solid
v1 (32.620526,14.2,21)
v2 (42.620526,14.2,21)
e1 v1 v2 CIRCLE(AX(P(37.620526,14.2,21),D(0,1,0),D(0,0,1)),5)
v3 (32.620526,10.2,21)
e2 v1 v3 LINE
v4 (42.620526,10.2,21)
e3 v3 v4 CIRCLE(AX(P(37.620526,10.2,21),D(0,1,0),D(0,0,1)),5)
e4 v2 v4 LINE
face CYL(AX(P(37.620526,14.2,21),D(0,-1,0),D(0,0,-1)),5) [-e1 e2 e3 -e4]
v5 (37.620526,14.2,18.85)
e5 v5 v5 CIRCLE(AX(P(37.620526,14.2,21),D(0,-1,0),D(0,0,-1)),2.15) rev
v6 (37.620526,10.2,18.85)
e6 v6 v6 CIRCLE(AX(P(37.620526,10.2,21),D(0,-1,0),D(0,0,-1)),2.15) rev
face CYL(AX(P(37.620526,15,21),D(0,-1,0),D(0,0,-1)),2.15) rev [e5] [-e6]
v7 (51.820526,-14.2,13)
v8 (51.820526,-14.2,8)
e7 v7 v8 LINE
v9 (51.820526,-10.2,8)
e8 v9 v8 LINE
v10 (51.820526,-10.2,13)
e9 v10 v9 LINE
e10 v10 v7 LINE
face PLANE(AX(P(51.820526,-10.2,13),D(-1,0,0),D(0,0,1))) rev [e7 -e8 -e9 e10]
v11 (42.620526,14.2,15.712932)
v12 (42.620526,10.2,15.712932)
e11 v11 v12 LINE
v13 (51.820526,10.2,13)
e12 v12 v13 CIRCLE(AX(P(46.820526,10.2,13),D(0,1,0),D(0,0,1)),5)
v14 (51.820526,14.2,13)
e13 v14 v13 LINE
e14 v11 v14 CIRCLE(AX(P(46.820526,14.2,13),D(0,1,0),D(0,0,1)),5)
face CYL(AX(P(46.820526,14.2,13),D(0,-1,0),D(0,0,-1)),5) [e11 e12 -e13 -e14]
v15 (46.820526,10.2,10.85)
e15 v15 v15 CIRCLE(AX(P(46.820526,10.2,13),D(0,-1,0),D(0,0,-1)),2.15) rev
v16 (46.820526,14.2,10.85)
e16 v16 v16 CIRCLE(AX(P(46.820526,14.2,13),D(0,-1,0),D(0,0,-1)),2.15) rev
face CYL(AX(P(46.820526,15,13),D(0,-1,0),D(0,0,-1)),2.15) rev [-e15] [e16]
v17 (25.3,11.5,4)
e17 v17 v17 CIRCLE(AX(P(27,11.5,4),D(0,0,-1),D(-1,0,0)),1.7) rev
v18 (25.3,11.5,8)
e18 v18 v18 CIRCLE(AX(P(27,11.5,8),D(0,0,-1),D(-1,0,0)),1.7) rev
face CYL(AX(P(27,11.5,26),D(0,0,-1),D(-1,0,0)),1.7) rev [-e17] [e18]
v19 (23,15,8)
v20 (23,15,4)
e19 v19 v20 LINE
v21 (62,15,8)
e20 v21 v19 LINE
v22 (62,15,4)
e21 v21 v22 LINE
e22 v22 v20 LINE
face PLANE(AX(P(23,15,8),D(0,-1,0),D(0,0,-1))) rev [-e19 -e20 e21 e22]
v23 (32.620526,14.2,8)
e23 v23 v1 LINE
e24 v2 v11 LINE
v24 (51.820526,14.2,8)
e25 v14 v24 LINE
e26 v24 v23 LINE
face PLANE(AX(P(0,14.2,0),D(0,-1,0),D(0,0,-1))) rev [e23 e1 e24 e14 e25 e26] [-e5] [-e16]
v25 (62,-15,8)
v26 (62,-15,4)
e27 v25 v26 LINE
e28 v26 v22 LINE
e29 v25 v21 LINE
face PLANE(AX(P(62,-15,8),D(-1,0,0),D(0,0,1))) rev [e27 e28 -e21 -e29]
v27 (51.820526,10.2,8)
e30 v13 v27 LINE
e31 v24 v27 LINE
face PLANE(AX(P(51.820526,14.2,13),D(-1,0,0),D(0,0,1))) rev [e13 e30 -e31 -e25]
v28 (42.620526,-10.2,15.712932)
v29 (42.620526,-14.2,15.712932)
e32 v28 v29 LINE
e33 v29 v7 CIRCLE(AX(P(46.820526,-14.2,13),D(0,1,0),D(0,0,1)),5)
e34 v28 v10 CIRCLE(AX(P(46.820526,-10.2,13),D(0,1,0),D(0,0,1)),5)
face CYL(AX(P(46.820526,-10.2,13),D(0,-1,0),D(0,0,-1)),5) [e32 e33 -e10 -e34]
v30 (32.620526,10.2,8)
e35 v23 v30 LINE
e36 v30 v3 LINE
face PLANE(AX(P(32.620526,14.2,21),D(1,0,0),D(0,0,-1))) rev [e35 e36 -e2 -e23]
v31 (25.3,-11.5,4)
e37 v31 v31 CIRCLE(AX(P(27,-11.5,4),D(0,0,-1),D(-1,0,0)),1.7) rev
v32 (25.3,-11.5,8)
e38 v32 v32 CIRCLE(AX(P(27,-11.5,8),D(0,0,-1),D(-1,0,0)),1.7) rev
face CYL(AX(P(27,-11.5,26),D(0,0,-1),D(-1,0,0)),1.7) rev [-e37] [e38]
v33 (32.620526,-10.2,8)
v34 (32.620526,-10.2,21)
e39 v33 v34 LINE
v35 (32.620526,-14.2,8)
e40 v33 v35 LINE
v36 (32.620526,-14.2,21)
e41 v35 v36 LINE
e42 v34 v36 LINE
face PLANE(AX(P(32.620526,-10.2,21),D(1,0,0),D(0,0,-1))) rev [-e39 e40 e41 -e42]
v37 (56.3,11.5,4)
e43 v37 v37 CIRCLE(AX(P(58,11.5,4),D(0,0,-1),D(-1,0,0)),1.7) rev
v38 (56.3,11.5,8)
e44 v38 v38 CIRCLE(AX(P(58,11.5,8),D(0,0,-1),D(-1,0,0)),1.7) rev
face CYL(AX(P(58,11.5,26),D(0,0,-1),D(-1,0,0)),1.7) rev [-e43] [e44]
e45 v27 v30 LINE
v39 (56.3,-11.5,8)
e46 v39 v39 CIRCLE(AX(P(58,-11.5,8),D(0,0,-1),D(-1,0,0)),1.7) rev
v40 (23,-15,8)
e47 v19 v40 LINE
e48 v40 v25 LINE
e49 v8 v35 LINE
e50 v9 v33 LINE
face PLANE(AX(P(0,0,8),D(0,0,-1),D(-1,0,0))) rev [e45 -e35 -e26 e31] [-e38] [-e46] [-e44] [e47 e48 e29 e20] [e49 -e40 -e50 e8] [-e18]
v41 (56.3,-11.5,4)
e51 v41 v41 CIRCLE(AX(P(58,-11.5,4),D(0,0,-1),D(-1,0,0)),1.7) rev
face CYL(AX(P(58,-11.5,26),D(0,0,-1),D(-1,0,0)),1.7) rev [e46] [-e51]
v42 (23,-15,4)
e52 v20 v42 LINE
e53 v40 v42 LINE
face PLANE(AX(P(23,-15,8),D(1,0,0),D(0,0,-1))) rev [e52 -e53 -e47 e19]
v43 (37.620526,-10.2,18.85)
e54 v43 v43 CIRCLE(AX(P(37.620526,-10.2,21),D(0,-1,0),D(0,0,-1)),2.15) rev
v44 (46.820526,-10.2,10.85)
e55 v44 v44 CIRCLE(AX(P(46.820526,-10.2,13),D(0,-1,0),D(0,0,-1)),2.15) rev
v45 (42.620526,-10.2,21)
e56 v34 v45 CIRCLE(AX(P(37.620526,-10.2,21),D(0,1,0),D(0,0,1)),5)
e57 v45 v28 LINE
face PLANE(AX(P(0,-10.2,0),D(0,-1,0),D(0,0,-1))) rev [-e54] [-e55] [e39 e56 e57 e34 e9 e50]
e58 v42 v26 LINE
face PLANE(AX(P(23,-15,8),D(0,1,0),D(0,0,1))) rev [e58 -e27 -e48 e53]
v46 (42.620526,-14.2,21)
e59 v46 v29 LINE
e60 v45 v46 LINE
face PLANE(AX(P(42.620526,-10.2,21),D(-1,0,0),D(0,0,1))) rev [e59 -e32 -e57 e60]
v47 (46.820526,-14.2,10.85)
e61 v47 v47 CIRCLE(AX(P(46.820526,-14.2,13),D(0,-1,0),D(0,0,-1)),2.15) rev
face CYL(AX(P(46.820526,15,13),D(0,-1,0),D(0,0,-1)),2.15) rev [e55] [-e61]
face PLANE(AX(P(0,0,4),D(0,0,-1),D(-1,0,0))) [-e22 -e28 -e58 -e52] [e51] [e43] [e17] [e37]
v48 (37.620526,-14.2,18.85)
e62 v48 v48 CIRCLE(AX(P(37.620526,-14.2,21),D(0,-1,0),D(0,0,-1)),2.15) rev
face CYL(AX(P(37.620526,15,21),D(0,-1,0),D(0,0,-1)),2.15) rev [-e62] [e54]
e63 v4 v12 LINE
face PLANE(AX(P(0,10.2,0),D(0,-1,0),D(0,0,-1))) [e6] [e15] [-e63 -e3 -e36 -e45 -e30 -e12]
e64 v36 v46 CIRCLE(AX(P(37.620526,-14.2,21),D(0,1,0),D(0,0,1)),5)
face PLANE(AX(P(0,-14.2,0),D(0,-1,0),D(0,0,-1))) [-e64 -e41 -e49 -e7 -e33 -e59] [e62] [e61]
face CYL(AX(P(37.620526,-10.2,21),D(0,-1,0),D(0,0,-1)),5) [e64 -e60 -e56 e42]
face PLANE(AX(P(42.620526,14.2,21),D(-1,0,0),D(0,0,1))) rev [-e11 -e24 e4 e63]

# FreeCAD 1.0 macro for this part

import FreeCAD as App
import Part
import Sketcher


def add_polygon(sketch, points):
    """Adds a closed chain of lines whose ends are joined by coincident constraints."""
    first, n = sketch.GeometryCount, len(points)
    for a, b in zip(points, points[1:] + points[:1]):
        sketch.addGeometry(Part.LineSegment(App.Vector(*a, 0), App.Vector(*b, 0)), False)
    for i in range(n):
        sketch.addConstraint(Sketcher.Constraint("Coincident", first + i, 2, first + (i + 1) % n, 1))

doc = App.newDocument("Part")
body = doc.addObject("PartDesign::Body", "Body")

# Sketch on XY plane
sketch1 = body.newObject("Sketcher::SketchObject", "Sketch")
sketch1.AttachmentSupport = (doc.getObject("XY_Plane"), [""])
sketch1.MapMode = "FlatFace"
sketch1.AttachmentOffset = App.Placement(App.Vector(0, 0, 4), App.Rotation())
add_polygon(sketch1, [(23, 15), (23, -15), (62, -15), (62, 15)])  # lines 0-3
sketch1.addConstraint(Sketcher.Constraint("Vertical", 0))
sketch1.addConstraint(Sketcher.Constraint("Horizontal", 1))
sketch1.addConstraint(Sketcher.Constraint("Vertical", 2))
sketch1.addConstraint(Sketcher.Constraint("Horizontal", 3))
sketch1.addConstraint(Sketcher.Constraint("DistanceX", 1, 1, 1, 2, 39.0))
sketch1.addConstraint(Sketcher.Constraint("DistanceY", 0, 2, 0, 1, 30.0))
sketch1.addConstraint(Sketcher.Constraint("DistanceX", -1, 1, 0, 2, 23.0))
sketch1.addConstraint(Sketcher.Constraint("DistanceY", 0, 2, -1, 1, 15.0))
pad1 = body.newObject("PartDesign::Pad", "Pad")
pad1.Profile = sketch1
pad1.Length = 4

# Sketch on XZ plane
sketch2 = body.newObject("Sketcher::SketchObject", "Sketch001")
sketch2.AttachmentSupport = (doc.getObject("XZ_Plane"), [""])
sketch2.MapMode = "FlatFace"
sketch2.AttachmentOffset = App.Placement(App.Vector(0, 0, -10.2), App.Rotation())
add_polygon(sketch2, [(33, 8), (33, 21), (43, 21), (43, 8)])  # lines 0-3
sketch2.addConstraint(Sketcher.Constraint("Vertical", 0))
sketch2.addConstraint(Sketcher.Constraint("Horizontal", 1))
sketch2.addConstraint(Sketcher.Constraint("Vertical", 2))
sketch2.addConstraint(Sketcher.Constraint("Horizontal", 3))
sketch2.addConstraint(Sketcher.Constraint("DistanceX", 1, 1, 1, 2, 10.0))
sketch2.addConstraint(Sketcher.Constraint("DistanceY", 0, 1, 0, 2, 13.0))
sketch2.addConstraint(Sketcher.Constraint("DistanceY", -1, 1, 0, 2, 21.0))
sketch2.addConstraint(Sketcher.Constraint("DistanceX", -1, 1, 0, 2, 32.620526))
pad2 = body.newObject("PartDesign::Pad", "Pad001")
pad2.Profile = sketch2
pad2.Length = 4
pad2.Reversed = True

# Sketch on XZ plane
sketch3 = body.newObject("Sketcher::SketchObject", "Sketch002")
sketch3.AttachmentSupport = (doc.getObject("XZ_Plane"), [""])
sketch3.MapMode = "FlatFace"
sketch3.AttachmentOffset = App.Placement(App.Vector(0, 0, -10.2), App.Rotation())
sketch3.addGeometry(Part.Circle(App.Vector(38, 21, 0), App.Vector(0, 0, 1), 5), False)
sketch3.addConstraint(Sketcher.Constraint("Diameter", 0, 10.0))
sketch3.addConstraint(Sketcher.Constraint("DistanceY", -1, 1, 0, 3, 21.0))
sketch3.addConstraint(Sketcher.Constraint("DistanceX", -1, 1, 0, 3, 37.620526))
pad3 = body.newObject("PartDesign::Pad", "Pad002")
pad3.Profile = sketch3
pad3.Length = 4
pad3.Reversed = True

# Sketch on XZ plane
sketch4 = body.newObject("Sketcher::SketchObject", "Sketch003")
sketch4.AttachmentSupport = (doc.getObject("XZ_Plane"), [""])
sketch4.MapMode = "FlatFace"
sketch4.AttachmentOffset = App.Placement(App.Vector(0, 0, -10.2), App.Rotation())
add_polygon(sketch4, [(42, 8), (42, 13), (52, 13), (52, 8)])  # lines 0-3
sketch4.addConstraint(Sketcher.Constraint("Vertical", 0))
sketch4.addConstraint(Sketcher.Constraint("Horizontal", 1))
sketch4.addConstraint(Sketcher.Constraint("Vertical", 2))
sketch4.addConstraint(Sketcher.Constraint("Horizontal", 3))
sketch4.addConstraint(Sketcher.Constraint("DistanceX", 1, 1, 1, 2, 10.0))
sketch4.addConstraint(Sketcher.Constraint("DistanceY", 0, 1, 0, 2, 5.0))
sketch4.addConstraint(Sketcher.Constraint("DistanceY", -1, 1, 0, 2, 13.0))
sketch4.addConstraint(Sketcher.Constraint("DistanceX", -1, 1, 0, 2, 41.820526))
pad4 = body.newObject("PartDesign::Pad", "Pad003")
pad4.Profile = sketch4
pad4.Length = 4
pad4.Reversed = True

# Sketch on XZ plane
sketch5 = body.newObject("Sketcher::SketchObject", "Sketch004")
sketch5.AttachmentSupport = (doc.getObject("XZ_Plane"), [""])
sketch5.MapMode = "FlatFace"
sketch5.AttachmentOffset = App.Placement(App.Vector(0, 0, -10.2), App.Rotation())
sketch5.addGeometry(Part.Circle(App.Vector(47, 13, 0), App.Vector(0, 0, 1), 5), False)
sketch5.addConstraint(Sketcher.Constraint("Diameter", 0, 10.0))
sketch5.addConstraint(Sketcher.Constraint("DistanceY", -1, 1, 0, 3, 13.0))
sketch5.addConstraint(Sketcher.Constraint("DistanceX", -1, 1, 0, 3, 46.820526))
pad5 = body.newObject("PartDesign::Pad", "Pad004")
pad5.Profile = sketch5
pad5.Length = 4
pad5.Reversed = True

# Sketch on XZ plane
sketch6 = body.newObject("Sketcher::SketchObject", "Sketch005")
sketch6.AttachmentSupport = (doc.getObject("XZ_Plane"), [""])
sketch6.MapMode = "FlatFace"
sketch6.AttachmentOffset = App.Placement(App.Vector(0, 0, 14.2), App.Rotation())
add_polygon(sketch6, [(33, 8), (33, 21), (43, 21), (43, 8)])  # lines 0-3
sketch6.addConstraint(Sketcher.Constraint("Vertical", 0))
sketch6.addConstraint(Sketcher.Constraint("Horizontal", 1))
sketch6.addConstraint(Sketcher.Constraint("Vertical", 2))
sketch6.addConstraint(Sketcher.Constraint("Horizontal", 3))
sketch6.addConstraint(Sketcher.Constraint("DistanceX", 1, 1, 1, 2, 10.0))
sketch6.addConstraint(Sketcher.Constraint("DistanceY", 0, 1, 0, 2, 13.0))
sketch6.addConstraint(Sketcher.Constraint("DistanceY", -1, 1, 0, 2, 21.0))
sketch6.addConstraint(Sketcher.Constraint("DistanceX", -1, 1, 0, 2, 32.620526))
pad6 = body.newObject("PartDesign::Pad", "Pad005")
pad6.Profile = sketch6
pad6.Length = 4
pad6.Reversed = True

# Sketch on XZ plane
sketch7 = body.newObject("Sketcher::SketchObject", "Sketch006")
sketch7.AttachmentSupport = (doc.getObject("XZ_Plane"), [""])
sketch7.MapMode = "FlatFace"
sketch7.AttachmentOffset = App.Placement(App.Vector(0, 0, 14.2), App.Rotation())
sketch7.addGeometry(Part.Circle(App.Vector(38, 21, 0), App.Vector(0, 0, 1), 5), False)
sketch7.addConstraint(Sketcher.Constraint("Diameter", 0, 10.0))
sketch7.addConstraint(Sketcher.Constraint("DistanceY", -1, 1, 0, 3, 21.0))
sketch7.addConstraint(Sketcher.Constraint("DistanceX", -1, 1, 0, 3, 37.620526))
pad7 = body.newObject("PartDesign::Pad", "Pad006")
pad7.Profile = sketch7
pad7.Length = 4
pad7.Reversed = True

# Sketch on XZ plane
sketch8 = body.newObject("Sketcher::SketchObject", "Sketch007")
sketch8.AttachmentSupport = (doc.getObject("XZ_Plane"), [""])
sketch8.MapMode = "FlatFace"
sketch8.AttachmentOffset = App.Placement(App.Vector(0, 0, 14.2), App.Rotation())
add_polygon(sketch8, [(42, 8), (42, 13), (52, 13), (52, 8)])  # lines 0-3
sketch8.addConstraint(Sketcher.Constraint("Vertical", 0))
sketch8.addConstraint(Sketcher.Constraint("Horizontal", 1))
sketch8.addConstraint(Sketcher.Constraint("Vertical", 2))
sketch8.addConstraint(Sketcher.Constraint("Horizontal", 3))
sketch8.addConstraint(Sketcher.Constraint("DistanceX", 1, 1, 1, 2, 10.0))
sketch8.addConstraint(Sketcher.Constraint("DistanceY", 0, 1, 0, 2, 5.0))
sketch8.addConstraint(Sketcher.Constraint("DistanceY", -1, 1, 0, 2, 13.0))
sketch8.addConstraint(Sketcher.Constraint("DistanceX", -1, 1, 0, 2, 41.820526))
pad8 = body.newObject("PartDesign::Pad", "Pad007")
pad8.Profile = sketch8
pad8.Length = 4
pad8.Reversed = True

# Sketch on XZ plane
sketch9 = body.newObject("Sketcher::SketchObject", "Sketch008")
sketch9.AttachmentSupport = (doc.getObject("XZ_Plane"), [""])
sketch9.MapMode = "FlatFace"
sketch9.AttachmentOffset = App.Placement(App.Vector(0, 0, 14.2), App.Rotation())
sketch9.addGeometry(Part.Circle(App.Vector(47, 13, 0), App.Vector(0, 0, 1), 5), False)
sketch9.addConstraint(Sketcher.Constraint("Diameter", 0, 10.0))
sketch9.addConstraint(Sketcher.Constraint("DistanceY", -1, 1, 0, 3, 13.0))
sketch9.addConstraint(Sketcher.Constraint("DistanceX", -1, 1, 0, 3, 46.820526))
pad9 = body.newObject("PartDesign::Pad", "Pad008")
pad9.Profile = sketch9
pad9.Length = 4
pad9.Reversed = True

# Sketch on XZ plane
sketch10 = body.newObject("Sketcher::SketchObject", "Sketch009")
sketch10.AttachmentSupport = (doc.getObject("XZ_Plane"), [""])
sketch10.MapMode = "FlatFace"
sketch10.AttachmentOffset = App.Placement(App.Vector(0, 0, 20), App.Rotation())
sketch10.addGeometry(Part.Circle(App.Vector(37.6, 21, 0), App.Vector(0, 0, 1), 2.1), False)
sketch10.addGeometry(Part.Circle(App.Vector(46.8, 13, 0), App.Vector(0, 0, 1), 2.1), False)
sketch10.addConstraint(Sketcher.Constraint("Equal", 0, 1))
sketch10.addConstraint(Sketcher.Constraint("Diameter", 0, 4.3))
sketch10.addConstraint(Sketcher.Constraint("DistanceY", -1, 1, 0, 3, 21.0))
sketch10.addConstraint(Sketcher.Constraint("DistanceY", -1, 1, 1, 3, 13.0))
sketch10.addConstraint(Sketcher.Constraint("DistanceX", 0, 3, 1, 3, 9.2))
sketch10.addConstraint(Sketcher.Constraint("DistanceX", -1, 1, 0, 3, 37.620526))
pocket1 = body.newObject("PartDesign::Pocket", "Pocket")
pocket1.Profile = sketch10
pocket1.Type = "ThroughAll"

# Sketch on XY plane
sketch11 = body.newObject("Sketcher::SketchObject", "Sketch010")
sketch11.AttachmentSupport = (doc.getObject("XY_Plane"), [""])
sketch11.MapMode = "FlatFace"
sketch11.AttachmentOffset = App.Placement(App.Vector(0, 0, -50), App.Rotation())
sketch11.addGeometry(Part.Circle(App.Vector(27, -11.5, 0), App.Vector(0, 0, 1), 1.7), False)
sketch11.addGeometry(Part.Circle(App.Vector(27, 11.5, 0), App.Vector(0, 0, 1), 1.7), False)
sketch11.addGeometry(Part.Circle(App.Vector(58, -11.5, 0), App.Vector(0, 0, 1), 1.7), False)
sketch11.addGeometry(Part.Circle(App.Vector(58, 11.5, 0), App.Vector(0, 0, 1), 1.7), False)
sketch11.addConstraint(Sketcher.Constraint("Equal", 0, 1))
sketch11.addConstraint(Sketcher.Constraint("Equal", 1, 2))
sketch11.addConstraint(Sketcher.Constraint("Equal", 2, 3))
sketch11.addConstraint(Sketcher.Constraint("Symmetric", 0, 3, 1, 3, -1))
sketch11.addConstraint(Sketcher.Constraint("Symmetric", 2, 3, 3, 3, -1))
sketch11.addConstraint(Sketcher.Constraint("Horizontal", 0, 3, 2, 3))
sketch11.addConstraint(Sketcher.Constraint("Diameter", 0, 3.4))
sketch11.addConstraint(Sketcher.Constraint("DistanceX", -1, 1, 0, 3, 27.0))
sketch11.addConstraint(Sketcher.Constraint("DistanceX", -1, 1, 2, 3, 58.0))
sketch11.addConstraint(Sketcher.Constraint("DistanceY", 0, 3, 1, 3, 23.0))
pocket2 = body.newObject("PartDesign::Pocket", "Pocket001")
pocket2.Profile = sketch11
pocket2.Type = "ThroughAll"
pocket2.Reversed = True

doc.recompute()
